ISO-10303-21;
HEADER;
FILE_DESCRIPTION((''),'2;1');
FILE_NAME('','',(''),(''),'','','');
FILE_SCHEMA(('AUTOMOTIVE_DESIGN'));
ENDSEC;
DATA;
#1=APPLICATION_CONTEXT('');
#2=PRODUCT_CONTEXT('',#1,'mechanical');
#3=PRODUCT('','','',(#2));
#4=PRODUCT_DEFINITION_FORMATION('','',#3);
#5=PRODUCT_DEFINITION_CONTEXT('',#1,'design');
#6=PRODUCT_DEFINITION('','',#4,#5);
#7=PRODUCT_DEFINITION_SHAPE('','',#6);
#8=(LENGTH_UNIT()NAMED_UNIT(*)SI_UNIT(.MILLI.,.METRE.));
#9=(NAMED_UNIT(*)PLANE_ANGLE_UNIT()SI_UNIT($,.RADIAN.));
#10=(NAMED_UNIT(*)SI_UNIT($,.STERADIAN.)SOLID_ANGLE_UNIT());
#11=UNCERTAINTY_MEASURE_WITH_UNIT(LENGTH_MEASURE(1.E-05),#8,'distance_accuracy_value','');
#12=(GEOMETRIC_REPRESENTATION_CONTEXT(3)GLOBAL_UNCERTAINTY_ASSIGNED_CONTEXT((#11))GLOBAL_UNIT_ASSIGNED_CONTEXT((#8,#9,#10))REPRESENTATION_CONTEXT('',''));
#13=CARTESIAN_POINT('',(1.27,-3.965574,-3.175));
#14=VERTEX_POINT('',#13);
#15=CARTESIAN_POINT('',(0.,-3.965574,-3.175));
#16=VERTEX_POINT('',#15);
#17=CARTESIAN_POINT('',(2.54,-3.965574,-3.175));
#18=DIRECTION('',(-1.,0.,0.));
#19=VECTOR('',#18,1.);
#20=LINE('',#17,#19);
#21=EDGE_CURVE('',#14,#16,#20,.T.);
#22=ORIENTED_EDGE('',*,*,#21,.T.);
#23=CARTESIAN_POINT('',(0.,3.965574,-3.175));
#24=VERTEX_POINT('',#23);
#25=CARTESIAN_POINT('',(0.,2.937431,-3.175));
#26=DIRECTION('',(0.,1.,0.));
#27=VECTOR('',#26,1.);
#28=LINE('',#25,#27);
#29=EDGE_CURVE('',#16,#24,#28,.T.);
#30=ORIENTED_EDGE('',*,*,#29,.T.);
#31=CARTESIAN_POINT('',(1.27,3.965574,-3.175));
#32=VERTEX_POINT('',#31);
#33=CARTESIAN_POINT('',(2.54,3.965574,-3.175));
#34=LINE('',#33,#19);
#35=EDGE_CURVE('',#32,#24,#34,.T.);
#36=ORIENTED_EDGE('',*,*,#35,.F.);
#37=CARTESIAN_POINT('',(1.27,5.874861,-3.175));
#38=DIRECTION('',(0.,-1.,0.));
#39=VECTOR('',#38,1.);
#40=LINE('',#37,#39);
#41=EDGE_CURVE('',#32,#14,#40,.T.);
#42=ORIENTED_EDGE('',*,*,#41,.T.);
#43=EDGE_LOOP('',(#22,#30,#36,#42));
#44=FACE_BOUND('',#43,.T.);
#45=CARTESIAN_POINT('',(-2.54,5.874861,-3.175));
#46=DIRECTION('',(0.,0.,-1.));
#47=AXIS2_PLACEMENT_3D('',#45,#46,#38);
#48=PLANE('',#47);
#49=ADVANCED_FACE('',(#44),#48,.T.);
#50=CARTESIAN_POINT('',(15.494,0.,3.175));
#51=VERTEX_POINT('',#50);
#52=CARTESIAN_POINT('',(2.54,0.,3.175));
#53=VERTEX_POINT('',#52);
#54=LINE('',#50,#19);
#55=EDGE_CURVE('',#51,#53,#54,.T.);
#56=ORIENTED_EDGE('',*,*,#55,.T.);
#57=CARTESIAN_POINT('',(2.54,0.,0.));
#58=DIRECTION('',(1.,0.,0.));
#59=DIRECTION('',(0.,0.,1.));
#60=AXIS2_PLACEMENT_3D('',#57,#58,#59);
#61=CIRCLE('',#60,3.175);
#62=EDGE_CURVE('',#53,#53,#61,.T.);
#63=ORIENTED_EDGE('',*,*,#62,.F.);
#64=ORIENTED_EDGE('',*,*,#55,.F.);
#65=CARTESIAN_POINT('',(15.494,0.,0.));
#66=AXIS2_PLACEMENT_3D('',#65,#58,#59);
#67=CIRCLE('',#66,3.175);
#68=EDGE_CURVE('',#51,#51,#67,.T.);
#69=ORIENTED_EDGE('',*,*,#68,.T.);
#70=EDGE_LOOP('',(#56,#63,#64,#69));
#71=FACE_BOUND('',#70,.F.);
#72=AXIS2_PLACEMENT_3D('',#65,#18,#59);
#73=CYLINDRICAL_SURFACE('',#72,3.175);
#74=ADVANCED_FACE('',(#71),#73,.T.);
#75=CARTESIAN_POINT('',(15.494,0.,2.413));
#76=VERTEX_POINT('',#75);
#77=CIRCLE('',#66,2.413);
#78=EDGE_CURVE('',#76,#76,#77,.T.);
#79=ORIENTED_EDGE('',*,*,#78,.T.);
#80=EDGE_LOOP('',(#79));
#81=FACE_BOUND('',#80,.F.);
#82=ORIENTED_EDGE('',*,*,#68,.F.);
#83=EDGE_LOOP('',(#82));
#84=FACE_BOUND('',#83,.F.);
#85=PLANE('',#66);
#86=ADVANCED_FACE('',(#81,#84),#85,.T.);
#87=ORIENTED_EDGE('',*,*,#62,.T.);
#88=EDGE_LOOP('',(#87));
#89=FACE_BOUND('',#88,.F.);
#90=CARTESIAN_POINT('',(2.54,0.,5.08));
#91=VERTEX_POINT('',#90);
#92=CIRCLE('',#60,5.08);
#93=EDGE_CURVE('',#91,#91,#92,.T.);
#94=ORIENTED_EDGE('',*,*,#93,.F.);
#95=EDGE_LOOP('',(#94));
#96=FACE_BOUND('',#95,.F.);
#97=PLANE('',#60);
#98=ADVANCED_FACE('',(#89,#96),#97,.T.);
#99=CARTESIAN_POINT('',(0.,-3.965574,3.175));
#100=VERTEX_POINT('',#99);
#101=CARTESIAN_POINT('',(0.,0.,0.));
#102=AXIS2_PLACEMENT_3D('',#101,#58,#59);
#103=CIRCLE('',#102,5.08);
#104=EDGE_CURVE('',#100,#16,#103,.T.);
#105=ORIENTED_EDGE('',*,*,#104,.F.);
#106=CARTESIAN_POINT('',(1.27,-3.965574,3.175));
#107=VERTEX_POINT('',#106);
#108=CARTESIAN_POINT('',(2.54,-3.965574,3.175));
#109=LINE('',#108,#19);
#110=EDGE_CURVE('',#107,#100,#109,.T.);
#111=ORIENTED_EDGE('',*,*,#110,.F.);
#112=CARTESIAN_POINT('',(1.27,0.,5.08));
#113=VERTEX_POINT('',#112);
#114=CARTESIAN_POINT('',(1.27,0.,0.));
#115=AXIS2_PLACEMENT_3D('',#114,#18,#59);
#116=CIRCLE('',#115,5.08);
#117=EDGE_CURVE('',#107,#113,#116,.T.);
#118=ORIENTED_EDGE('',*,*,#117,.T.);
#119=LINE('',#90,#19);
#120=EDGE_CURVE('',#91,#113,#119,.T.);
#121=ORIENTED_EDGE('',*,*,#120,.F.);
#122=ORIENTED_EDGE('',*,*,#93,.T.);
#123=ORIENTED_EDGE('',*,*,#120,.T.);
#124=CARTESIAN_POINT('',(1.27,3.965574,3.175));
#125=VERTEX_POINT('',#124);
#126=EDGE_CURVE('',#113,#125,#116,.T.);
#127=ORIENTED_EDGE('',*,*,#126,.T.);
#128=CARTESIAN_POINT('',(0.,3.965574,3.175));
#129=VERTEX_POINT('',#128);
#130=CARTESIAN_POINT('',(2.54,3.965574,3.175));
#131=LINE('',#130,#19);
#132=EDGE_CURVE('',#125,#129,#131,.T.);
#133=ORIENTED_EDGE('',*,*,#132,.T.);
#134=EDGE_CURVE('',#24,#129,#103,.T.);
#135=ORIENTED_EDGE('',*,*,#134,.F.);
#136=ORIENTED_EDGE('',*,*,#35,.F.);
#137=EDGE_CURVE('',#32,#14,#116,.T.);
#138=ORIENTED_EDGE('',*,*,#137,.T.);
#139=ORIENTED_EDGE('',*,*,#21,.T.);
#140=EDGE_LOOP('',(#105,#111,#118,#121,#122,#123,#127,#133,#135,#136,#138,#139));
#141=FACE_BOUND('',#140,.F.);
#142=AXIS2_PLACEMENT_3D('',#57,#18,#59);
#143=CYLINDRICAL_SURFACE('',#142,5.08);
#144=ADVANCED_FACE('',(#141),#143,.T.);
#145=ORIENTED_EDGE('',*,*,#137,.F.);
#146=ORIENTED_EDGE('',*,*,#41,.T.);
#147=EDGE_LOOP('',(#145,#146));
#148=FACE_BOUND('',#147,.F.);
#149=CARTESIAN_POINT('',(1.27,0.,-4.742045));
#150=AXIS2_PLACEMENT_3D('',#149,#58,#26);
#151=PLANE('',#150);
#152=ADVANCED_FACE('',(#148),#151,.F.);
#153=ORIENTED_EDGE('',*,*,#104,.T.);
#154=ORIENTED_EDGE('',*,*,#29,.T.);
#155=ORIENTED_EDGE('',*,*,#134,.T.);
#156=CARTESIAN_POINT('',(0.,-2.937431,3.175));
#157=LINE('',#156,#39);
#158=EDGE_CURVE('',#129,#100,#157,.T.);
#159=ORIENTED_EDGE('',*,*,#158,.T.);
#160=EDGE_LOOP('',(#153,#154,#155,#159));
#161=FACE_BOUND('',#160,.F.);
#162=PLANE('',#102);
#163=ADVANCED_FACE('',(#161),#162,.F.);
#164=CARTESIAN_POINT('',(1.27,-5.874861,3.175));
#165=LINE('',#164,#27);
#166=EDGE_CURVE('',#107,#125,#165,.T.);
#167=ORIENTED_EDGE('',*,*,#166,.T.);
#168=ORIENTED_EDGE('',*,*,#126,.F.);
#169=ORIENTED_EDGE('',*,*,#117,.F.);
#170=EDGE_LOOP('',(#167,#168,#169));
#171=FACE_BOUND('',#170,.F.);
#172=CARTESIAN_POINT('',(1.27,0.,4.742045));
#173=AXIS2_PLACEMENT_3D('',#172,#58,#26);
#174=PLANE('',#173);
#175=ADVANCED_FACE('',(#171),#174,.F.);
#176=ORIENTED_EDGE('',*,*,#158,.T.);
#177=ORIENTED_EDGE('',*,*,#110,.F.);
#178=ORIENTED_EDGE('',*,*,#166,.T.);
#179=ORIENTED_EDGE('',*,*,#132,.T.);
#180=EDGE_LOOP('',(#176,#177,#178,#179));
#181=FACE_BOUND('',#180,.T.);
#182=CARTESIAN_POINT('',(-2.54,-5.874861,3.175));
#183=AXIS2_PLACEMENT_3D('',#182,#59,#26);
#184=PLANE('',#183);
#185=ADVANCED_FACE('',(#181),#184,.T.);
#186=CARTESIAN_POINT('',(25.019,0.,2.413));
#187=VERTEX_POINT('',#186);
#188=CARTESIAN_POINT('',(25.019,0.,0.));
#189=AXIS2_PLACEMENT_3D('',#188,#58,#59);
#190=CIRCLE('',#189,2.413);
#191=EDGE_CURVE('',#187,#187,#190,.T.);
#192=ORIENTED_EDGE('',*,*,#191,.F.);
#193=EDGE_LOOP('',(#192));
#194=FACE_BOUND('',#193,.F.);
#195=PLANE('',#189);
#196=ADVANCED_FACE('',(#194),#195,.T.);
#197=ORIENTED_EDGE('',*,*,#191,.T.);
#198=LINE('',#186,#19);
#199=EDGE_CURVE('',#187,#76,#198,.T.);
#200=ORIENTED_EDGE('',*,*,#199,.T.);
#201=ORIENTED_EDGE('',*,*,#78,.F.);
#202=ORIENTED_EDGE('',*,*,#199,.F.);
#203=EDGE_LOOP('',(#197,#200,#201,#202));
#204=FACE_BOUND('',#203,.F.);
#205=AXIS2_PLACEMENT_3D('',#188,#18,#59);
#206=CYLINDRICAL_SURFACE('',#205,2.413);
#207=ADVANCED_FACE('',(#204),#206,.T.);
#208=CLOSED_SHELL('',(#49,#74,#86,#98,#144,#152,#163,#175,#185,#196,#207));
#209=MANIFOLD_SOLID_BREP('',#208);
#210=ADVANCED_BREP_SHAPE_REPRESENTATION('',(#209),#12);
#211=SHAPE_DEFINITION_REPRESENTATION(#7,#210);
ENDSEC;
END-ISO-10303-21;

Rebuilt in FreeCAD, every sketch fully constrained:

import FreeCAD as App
import Part
import Sketcher
from FreeCAD import Vector
Q = App.Units.Quantity

doc = App.newDocument("Part")
body = doc.addObject("PartDesign::Body", "Body")

# Sketch on XZ plane
sketch1 = doc.addObject("Sketcher::SketchObject", "Sketch")
body.addObject(sketch1)
sketch1.AttachmentSupport = (doc.XZ_Plane, [""])
sketch1.MapMode = "FlatFace"
sketch1.addGeometry([
    Part.LineSegment(Vector(0, 5.1, 0), Vector(0, 0, 0)),  # 0
    Part.LineSegment(Vector(0, 0, 0), Vector(25, 0, 0)),  # 1
    Part.LineSegment(Vector(25, 0, 0), Vector(25, 2.4, 0)),  # 2
    Part.LineSegment(Vector(25, 2.4, 0), Vector(15.5, 2.4, 0)),  # 3
    Part.LineSegment(Vector(15.5, 2.4, 0), Vector(15.5, 3.2, 0)),  # 4
    Part.LineSegment(Vector(15.5, 3.2, 0), Vector(2.5, 3.2, 0)),  # 5
    Part.LineSegment(Vector(2.5, 3.2, 0), Vector(2.5, 5.1, 0)),  # 6
    Part.LineSegment(Vector(2.5, 5.1, 0), Vector(0, 5.1, 0)),  # 7
], False)
sketch1.addConstraint([
    Sketcher.Constraint("Coincident", 0, 2, 1, 1),
    Sketcher.Constraint("Coincident", 1, 2, 2, 1),
    Sketcher.Constraint("Coincident", 2, 2, 3, 1),
    Sketcher.Constraint("Coincident", 3, 2, 4, 1),
    Sketcher.Constraint("Coincident", 4, 2, 5, 1),
    Sketcher.Constraint("Coincident", 5, 2, 6, 1),
    Sketcher.Constraint("Coincident", 6, 2, 7, 1),
    Sketcher.Constraint("Coincident", 7, 2, 0, 1),
    Sketcher.Constraint("Vertical", 0),
    Sketcher.Constraint("Horizontal", 1),
    Sketcher.Constraint("Vertical", 2),
    Sketcher.Constraint("Horizontal", 3),
    Sketcher.Constraint("Vertical", 4),
    Sketcher.Constraint("Horizontal", 5),
    Sketcher.Constraint("Vertical", 6),
    Sketcher.Constraint("Horizontal", 7),
    Sketcher.Constraint("Coincident", 0, 2, -1, 1),
    Sketcher.Constraint("DistanceX", 7, 2, 7, 1, Q("0.1 in")),
    Sketcher.Constraint("DistanceY", 0, 2, 0, 1, Q("0.2 in")),
    Sketcher.Constraint("DistanceX", 5, 2, 5, 1, Q("0.51 in")),
    Sketcher.Constraint("DistanceY", 4, 1, 4, 2, Q("0.03 in")),
    Sketcher.Constraint("DistanceX", 1, 1, 1, 2, Q("0.985 in")),
    Sketcher.Constraint("DistanceY", 2, 1, 2, 2, Q("0.095 in")),
])
revolution = doc.addObject("PartDesign::Revolution", "Revolution")
body.addObject(revolution)
revolution.Profile = sketch1
revolution.ReferenceAxis = (sketch1, ["H_Axis"])
revolution.Angle = 360

# Sketch on YZ plane
sketch2 = doc.addObject("Sketcher::SketchObject", "Sketch001")
body.addObject(sketch2)
sketch2.AttachmentSupport = (doc.YZ_Plane, [""])
sketch2.MapMode = "FlatFace"
sketch2.AttachmentOffset = App.Placement(Vector(0, 0, -0.1 * 25.4), App.Rotation())
sketch2.addGeometry([
    Part.LineSegment(Vector(-5.9, 3.2, 0), Vector(5.9, 3.2, 0)),  # 0
    Part.LineSegment(Vector(5.9, 3.2, 0), Vector(5.9, 6.3, 0)),  # 1
    Part.LineSegment(Vector(5.9, 6.3, 0), Vector(-5.9, 6.3, 0)),  # 2
    Part.LineSegment(Vector(-5.9, 6.3, 0), Vector(-5.9, 3.2, 0)),  # 3
    Part.LineSegment(Vector(5.9, -3.2, 0), Vector(-5.9, -3.2, 0)),  # 4
    Part.LineSegment(Vector(-5.9, -3.2, 0), Vector(-5.9, -6.3, 0)),  # 5
    Part.LineSegment(Vector(-5.9, -6.3, 0), Vector(5.9, -6.3, 0)),  # 6
    Part.LineSegment(Vector(5.9, -6.3, 0), Vector(5.9, -3.2, 0)),  # 7
], False)
sketch2.addConstraint([
    Sketcher.Constraint("Coincident", 0, 2, 1, 1),
    Sketcher.Constraint("Coincident", 1, 2, 2, 1),
    Sketcher.Constraint("Coincident", 2, 2, 3, 1),
    Sketcher.Constraint("Coincident", 3, 2, 0, 1),
    Sketcher.Constraint("Coincident", 4, 2, 5, 1),
    Sketcher.Constraint("Coincident", 5, 2, 6, 1),
    Sketcher.Constraint("Coincident", 6, 2, 7, 1),
    Sketcher.Constraint("Coincident", 7, 2, 4, 1),
    Sketcher.Constraint("Horizontal", 0),
    Sketcher.Constraint("Vertical", 1),
    Sketcher.Constraint("Horizontal", 2),
    Sketcher.Constraint("Vertical", 3),
    Sketcher.Constraint("Horizontal", 4),
    Sketcher.Constraint("Vertical", 5),
    Sketcher.Constraint("Horizontal", 6),
    Sketcher.Constraint("Vertical", 7),
    Sketcher.Constraint("Symmetric", 0, 2, 4, 2, -1, 1),
    Sketcher.Constraint("Symmetric", 2, 2, 6, 2, -1, 1),
    Sketcher.Constraint("Vertical", 3, 2, 4, 2),
    Sketcher.Constraint("DistanceY", 4, 2, 3, 2, Q("0.25 in")),
    Sketcher.Constraint("DistanceY", 1, 1, 1, 2, 3.134091),
    Sketcher.Constraint("DistanceX", 0, 1, 0, 2, 11.749722),
])
pocket1 = doc.addObject("PartDesign::Pocket", "Pocket")
body.addObject(pocket1)
pocket1.Profile = sketch2
pocket1.Length = Q("0.15 in")
pocket1.Reversed = True

doc.recompute()
